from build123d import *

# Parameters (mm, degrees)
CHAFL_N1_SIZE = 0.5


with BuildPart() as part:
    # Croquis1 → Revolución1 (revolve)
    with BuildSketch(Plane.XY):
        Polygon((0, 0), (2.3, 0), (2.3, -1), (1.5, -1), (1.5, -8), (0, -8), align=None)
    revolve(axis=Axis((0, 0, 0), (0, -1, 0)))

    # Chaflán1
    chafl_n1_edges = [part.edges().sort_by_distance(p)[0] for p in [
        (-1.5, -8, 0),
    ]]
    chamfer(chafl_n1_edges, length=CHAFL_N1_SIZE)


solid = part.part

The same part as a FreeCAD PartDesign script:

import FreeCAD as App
import Part
import Sketcher

V = App.Vector
Q = App.Units.Quantity


def edges_at(feature, points):
    """Names of the edges that pass closest to the given points."""
    edges = feature.Shape.Edges
    near = lambda p: min(range(len(edges)), key=lambda i: edges[i].distToShape(Part.Vertex(*p))[0])
    return sorted({f"Edge{near(p) + 1}" for p in points})


def add_polygon(sketch, points):
    """Adds a closed chain of lines whose ends are joined by coincident constraints."""
    first, n = sketch.GeometryCount, len(points)
    for a, b in zip(points, points[1:] + points[:1]):
        sketch.addGeometry(Part.LineSegment(App.Vector(*a, 0), App.Vector(*b, 0)), False)
    for i in range(n):
        sketch.addConstraint(Sketcher.Constraint("Coincident", first + i, 2, first + (i + 1) % n, 1))

doc = App.newDocument("Part")
body = doc.addObject("PartDesign::Body", "Body")

sketch1 = body.newObject("Sketcher::SketchObject", "Sketch")
sketch1.AttachmentSupport = (doc.getObject("XY_Plane"), [""])
sketch1.MapMode = "FlatFace"
add_polygon(sketch1, [(2.3, 0), (0, 0), (0, -8), (1.5, -8), (1.5, -1), (2.3, -1)])
sketch1.addConstraint(Sketcher.Constraint("Horizontal", 0))
sketch1.addConstraint(Sketcher.Constraint("Vertical", 1))
sketch1.addConstraint(Sketcher.Constraint("Horizontal", 2))
sketch1.addConstraint(Sketcher.Constraint("Vertical", 3))
sketch1.addConstraint(Sketcher.Constraint("Horizontal", 4))
sketch1.addConstraint(Sketcher.Constraint("Vertical", 5))
sketch1.addConstraint(Sketcher.Constraint("Coincident", 0, 2, -1, 1))
sketch1.addConstraint(Sketcher.Constraint("DistanceY", 1, 2, 1, 1, Q("8 mm")))
sketch1.addConstraint(Sketcher.Constraint("DistanceY", 3, 1, 3, 2, Q("7 mm")))
sketch1.addConstraint(Sketcher.Constraint("DistanceX", 0, 2, 0, 1, Q("2.3 mm")))
sketch1.addConstraint(Sketcher.Constraint("DistanceX", 2, 1, 2, 2, Q("1.5 mm")))
revolution = body.newObject("PartDesign::Revolution", "Revolution")
revolution.Profile = sketch1
revolution.ReferenceAxis = (sketch1, ["V_Axis"])
revolution.Angle = 360
doc.recompute()

chamfer = body.newObject("PartDesign::Chamfer", "Chamfer")
chamfer.Base = (revolution, edges_at(revolution, [(-1.5, -8, 0)]))
chamfer.Size = 0.5

doc.recompute()
